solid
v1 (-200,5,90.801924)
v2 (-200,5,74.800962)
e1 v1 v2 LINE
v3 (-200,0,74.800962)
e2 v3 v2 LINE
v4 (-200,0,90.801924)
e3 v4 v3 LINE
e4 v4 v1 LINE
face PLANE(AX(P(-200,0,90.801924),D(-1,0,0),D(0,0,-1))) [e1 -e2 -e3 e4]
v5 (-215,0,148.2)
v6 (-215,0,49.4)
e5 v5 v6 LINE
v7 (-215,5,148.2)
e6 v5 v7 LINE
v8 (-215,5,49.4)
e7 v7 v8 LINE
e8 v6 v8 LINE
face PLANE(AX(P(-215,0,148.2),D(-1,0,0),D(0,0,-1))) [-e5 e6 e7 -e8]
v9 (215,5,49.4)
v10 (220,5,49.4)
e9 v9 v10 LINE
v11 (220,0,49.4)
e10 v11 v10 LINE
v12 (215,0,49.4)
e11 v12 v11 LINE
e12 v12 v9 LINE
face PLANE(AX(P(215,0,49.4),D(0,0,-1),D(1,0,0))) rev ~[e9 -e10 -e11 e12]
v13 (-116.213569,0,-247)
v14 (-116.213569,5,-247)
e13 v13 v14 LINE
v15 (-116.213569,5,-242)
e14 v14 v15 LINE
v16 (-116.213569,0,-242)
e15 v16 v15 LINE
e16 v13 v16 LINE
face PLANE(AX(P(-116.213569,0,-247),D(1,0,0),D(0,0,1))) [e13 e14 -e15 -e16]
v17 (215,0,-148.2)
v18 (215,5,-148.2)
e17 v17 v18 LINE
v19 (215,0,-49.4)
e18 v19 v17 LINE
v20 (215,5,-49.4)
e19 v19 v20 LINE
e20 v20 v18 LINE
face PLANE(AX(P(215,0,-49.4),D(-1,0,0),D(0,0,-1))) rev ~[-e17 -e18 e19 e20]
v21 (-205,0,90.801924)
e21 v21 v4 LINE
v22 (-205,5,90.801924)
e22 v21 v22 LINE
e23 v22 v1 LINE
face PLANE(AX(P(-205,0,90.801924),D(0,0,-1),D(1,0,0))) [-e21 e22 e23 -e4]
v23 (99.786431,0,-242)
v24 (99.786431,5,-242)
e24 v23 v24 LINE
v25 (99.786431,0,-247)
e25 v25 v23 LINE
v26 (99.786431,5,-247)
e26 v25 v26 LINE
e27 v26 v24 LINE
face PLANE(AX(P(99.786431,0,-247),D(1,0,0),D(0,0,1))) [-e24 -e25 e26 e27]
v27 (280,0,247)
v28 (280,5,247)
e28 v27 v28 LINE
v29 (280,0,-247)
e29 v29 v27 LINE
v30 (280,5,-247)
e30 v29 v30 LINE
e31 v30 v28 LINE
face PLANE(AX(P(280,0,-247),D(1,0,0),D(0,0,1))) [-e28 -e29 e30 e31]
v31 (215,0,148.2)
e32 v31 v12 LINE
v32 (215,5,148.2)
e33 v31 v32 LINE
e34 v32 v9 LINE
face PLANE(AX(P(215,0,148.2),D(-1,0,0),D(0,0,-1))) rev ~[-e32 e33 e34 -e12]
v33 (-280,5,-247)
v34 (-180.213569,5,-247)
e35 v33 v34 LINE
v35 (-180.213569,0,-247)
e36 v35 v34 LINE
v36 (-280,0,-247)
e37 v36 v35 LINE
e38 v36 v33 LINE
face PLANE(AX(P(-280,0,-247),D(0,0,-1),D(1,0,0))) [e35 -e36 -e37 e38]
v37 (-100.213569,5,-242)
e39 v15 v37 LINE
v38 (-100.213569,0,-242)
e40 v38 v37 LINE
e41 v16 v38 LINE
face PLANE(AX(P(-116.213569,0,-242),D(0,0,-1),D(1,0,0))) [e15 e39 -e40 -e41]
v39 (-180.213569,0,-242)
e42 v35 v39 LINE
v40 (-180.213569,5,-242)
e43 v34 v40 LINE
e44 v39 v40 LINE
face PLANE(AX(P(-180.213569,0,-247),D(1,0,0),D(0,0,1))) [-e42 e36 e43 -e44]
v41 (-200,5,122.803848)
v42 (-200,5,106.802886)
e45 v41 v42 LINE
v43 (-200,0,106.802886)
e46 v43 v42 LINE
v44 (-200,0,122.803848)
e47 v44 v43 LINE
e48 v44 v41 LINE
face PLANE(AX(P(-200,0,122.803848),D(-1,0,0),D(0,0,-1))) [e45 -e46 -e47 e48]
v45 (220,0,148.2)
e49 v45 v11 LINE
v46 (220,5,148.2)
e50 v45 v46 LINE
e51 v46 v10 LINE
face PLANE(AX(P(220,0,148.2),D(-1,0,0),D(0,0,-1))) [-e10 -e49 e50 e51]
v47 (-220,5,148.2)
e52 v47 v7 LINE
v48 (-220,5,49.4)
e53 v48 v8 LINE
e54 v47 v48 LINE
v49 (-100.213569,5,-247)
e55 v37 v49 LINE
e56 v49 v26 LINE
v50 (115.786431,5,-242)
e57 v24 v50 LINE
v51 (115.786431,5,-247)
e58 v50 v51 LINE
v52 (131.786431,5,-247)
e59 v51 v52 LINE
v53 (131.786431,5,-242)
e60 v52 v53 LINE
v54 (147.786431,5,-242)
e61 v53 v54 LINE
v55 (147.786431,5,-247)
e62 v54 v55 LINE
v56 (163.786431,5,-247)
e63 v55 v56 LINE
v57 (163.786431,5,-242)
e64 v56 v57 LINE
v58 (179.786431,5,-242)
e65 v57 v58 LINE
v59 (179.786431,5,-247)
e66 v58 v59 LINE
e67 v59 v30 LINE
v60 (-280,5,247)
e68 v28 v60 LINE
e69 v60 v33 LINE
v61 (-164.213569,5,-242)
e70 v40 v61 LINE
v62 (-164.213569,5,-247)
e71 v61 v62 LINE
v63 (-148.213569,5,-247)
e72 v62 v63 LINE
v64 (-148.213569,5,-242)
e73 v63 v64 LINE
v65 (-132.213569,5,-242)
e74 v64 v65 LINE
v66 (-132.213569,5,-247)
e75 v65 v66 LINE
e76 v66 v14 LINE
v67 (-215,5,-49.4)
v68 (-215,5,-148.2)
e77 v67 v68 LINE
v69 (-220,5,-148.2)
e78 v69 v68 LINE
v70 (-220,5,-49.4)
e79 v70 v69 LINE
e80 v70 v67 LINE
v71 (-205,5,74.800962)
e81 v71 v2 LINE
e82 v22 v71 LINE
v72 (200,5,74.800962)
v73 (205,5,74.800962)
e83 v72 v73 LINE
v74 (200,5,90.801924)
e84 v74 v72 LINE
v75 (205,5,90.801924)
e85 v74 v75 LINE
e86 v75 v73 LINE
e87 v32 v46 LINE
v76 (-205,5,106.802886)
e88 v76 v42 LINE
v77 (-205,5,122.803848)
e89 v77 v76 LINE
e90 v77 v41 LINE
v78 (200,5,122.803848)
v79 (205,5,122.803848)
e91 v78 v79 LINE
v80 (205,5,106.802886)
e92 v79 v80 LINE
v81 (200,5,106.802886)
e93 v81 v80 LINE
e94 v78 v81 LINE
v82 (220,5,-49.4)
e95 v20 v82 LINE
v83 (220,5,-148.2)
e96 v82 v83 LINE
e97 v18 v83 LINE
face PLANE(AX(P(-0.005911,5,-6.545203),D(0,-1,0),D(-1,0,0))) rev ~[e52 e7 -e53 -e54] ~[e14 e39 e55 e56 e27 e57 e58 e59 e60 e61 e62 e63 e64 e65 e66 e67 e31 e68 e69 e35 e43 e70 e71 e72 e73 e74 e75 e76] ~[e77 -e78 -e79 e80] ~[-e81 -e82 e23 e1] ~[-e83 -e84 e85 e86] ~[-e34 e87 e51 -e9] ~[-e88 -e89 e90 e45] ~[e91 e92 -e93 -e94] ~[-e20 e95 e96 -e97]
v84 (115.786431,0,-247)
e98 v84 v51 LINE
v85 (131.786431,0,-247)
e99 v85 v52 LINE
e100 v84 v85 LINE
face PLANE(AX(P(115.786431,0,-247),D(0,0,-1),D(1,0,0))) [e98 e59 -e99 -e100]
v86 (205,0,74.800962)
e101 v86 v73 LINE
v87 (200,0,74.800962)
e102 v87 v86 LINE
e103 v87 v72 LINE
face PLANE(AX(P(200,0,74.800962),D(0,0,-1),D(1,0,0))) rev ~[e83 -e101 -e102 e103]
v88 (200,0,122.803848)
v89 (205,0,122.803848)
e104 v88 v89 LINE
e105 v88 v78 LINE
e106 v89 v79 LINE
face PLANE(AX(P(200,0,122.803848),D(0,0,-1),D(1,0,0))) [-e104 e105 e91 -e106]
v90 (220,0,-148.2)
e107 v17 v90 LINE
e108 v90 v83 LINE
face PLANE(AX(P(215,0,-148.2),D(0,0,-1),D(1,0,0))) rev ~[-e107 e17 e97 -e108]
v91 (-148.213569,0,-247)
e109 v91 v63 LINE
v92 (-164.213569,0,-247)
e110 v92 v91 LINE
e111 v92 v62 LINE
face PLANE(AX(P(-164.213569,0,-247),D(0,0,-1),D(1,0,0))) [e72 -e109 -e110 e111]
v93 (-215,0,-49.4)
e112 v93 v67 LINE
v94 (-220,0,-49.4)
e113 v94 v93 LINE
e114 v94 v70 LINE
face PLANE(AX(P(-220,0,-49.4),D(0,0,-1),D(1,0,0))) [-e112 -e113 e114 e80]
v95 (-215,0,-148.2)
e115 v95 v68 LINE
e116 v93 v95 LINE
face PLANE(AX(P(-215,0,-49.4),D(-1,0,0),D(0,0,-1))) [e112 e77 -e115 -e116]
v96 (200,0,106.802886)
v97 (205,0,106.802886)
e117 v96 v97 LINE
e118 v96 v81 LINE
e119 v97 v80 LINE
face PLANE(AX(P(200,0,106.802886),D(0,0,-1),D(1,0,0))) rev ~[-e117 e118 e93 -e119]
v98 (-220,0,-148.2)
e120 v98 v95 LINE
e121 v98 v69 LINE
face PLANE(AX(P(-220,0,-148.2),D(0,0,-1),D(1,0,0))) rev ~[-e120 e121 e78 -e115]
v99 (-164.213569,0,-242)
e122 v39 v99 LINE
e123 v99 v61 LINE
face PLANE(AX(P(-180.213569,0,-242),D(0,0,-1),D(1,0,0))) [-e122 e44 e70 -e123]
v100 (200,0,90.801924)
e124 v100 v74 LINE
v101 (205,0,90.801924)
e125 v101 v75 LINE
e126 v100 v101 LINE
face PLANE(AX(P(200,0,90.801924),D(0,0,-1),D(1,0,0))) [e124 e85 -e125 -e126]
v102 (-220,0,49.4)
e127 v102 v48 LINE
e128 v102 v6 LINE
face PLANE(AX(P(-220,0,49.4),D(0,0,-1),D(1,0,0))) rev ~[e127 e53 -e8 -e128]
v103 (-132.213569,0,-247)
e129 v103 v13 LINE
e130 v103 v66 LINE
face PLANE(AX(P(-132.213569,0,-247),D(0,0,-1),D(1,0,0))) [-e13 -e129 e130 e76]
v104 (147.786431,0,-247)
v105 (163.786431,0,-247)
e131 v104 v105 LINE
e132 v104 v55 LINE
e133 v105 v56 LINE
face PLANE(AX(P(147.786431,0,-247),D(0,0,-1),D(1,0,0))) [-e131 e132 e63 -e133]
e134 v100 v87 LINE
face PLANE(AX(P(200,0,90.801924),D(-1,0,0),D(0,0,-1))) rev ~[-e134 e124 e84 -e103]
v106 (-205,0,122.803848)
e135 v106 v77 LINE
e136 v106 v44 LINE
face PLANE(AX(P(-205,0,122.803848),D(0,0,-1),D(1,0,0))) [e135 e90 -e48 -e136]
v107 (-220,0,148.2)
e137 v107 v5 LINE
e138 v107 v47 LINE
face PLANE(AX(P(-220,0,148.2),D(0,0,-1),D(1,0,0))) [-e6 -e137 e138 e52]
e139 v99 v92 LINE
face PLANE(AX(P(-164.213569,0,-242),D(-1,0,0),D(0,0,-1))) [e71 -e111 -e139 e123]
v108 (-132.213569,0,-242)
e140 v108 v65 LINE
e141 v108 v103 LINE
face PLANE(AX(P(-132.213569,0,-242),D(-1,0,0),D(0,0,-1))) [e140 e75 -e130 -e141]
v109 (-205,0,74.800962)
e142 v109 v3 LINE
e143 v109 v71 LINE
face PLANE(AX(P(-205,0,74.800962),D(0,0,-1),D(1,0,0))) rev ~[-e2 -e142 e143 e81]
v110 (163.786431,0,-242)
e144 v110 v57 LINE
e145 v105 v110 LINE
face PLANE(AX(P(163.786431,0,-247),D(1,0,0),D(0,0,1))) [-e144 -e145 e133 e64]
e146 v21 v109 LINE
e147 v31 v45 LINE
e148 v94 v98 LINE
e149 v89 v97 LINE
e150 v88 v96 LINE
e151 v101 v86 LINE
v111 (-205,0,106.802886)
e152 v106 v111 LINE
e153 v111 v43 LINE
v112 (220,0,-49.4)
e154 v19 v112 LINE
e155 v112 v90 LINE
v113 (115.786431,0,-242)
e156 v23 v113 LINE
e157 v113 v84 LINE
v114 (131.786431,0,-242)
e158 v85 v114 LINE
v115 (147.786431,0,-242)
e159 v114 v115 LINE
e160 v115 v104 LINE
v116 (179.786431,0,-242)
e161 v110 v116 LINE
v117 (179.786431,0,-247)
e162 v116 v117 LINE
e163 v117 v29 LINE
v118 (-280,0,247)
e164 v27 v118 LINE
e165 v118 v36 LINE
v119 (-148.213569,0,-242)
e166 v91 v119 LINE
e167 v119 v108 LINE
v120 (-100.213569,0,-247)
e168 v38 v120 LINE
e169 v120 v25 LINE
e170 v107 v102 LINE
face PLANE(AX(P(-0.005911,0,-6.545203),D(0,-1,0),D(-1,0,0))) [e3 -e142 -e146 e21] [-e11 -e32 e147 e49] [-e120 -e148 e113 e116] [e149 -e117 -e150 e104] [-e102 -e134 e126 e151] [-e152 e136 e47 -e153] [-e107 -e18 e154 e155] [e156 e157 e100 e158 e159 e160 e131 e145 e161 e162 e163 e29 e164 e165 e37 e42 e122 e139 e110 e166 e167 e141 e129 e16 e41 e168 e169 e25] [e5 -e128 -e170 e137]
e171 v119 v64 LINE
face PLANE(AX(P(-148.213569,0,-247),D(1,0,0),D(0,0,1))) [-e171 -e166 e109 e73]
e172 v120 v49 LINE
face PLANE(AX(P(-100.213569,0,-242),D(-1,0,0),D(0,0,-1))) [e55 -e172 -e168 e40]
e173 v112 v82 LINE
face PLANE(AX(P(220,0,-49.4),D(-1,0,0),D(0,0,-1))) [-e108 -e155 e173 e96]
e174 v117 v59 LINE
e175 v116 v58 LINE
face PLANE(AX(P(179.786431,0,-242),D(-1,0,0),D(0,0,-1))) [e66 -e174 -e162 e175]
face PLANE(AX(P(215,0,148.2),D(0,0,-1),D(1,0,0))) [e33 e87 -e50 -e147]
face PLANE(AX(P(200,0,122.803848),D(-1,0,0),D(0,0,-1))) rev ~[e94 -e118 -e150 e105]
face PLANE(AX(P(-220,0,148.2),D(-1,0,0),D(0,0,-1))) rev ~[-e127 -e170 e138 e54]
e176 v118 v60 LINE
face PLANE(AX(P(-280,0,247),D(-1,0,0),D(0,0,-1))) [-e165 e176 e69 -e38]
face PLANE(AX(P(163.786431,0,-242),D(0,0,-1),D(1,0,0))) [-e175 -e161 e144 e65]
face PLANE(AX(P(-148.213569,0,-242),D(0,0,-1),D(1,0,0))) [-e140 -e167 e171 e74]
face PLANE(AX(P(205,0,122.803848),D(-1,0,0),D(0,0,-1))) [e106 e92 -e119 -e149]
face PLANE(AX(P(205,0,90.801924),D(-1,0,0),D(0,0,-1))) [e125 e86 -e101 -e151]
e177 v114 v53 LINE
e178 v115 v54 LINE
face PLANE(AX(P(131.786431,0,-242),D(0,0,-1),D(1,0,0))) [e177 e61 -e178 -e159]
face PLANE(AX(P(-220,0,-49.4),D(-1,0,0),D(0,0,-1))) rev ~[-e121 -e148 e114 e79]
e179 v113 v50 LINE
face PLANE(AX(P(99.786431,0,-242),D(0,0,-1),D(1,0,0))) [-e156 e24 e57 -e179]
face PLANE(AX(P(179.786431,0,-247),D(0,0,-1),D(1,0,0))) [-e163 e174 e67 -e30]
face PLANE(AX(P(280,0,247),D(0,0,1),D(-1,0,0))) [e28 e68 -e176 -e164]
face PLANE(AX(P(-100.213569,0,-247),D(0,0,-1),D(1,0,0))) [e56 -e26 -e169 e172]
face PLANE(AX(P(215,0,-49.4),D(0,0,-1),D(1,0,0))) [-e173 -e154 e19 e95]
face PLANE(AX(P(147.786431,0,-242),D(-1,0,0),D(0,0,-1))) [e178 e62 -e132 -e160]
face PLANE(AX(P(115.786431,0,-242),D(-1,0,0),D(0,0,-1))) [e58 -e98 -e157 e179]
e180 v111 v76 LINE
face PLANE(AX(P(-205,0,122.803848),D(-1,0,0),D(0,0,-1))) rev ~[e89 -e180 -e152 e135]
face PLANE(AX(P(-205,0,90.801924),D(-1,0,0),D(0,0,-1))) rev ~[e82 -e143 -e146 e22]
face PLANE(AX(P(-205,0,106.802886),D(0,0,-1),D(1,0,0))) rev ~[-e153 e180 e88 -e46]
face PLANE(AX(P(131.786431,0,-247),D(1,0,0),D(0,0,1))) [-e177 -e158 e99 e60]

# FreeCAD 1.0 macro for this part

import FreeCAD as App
import Part
import Sketcher

V = App.Vector


def add_polygon(sketch, points):
    """Adds a closed chain of lines whose ends are joined by coincident constraints."""
    first, n = sketch.GeometryCount, len(points)
    for a, b in zip(points, points[1:] + points[:1]):
        sketch.addGeometry(Part.LineSegment(App.Vector(*a, 0), App.Vector(*b, 0)), False)
    for i in range(n):
        sketch.addConstraint(Sketcher.Constraint("Coincident", first + i, 2, first + (i + 1) % n, 1))

doc = App.newDocument("Part")
body = doc.addObject("PartDesign::Body", "Body")

# Sketch on XZ plane
sketch1 = body.newObject("Sketcher::SketchObject", "Sketch")
sketch1.AttachmentSupport = (doc.getObject("XZ_Plane"), [""])
sketch1.MapMode = "FlatFace"
add_polygon(sketch1, [(-180, -247), (-280, -247), (-280, 247), (280, 247), (280, -247), (180, -247), (180, -242), (164, -242), (164, -247), (148, -247), (148, -242), (132, -242), (132, -247), (116, -247), (116, -242), (100, -242), (100, -247), (-100, -247), (-100, -242), (-116, -242), (-116, -247), (-132, -247), (-132, -242), (-148, -242), (-148, -247), (-164, -247), (-164, -242), (-180, -242)])  # lines 0-27
add_polygon(sketch1, [(200, 123), (200, 107), (205, 107), (205, 123)])  # lines 28-31
add_polygon(sketch1, [(215, 148), (215, 49), (220, 49), (220, 148)])  # lines 32-35
add_polygon(sketch1, [(200, 91), (200, 75), (205, 75), (205, 91)])  # lines 36-39
add_polygon(sketch1, [(-205, 123), (-205, 107), (-200, 107), (-200, 123)])  # lines 40-43
add_polygon(sketch1, [(-220, 148), (-220, 49), (-215, 49), (-215, 148)])  # lines 44-47
add_polygon(sketch1, [(-205, 91), (-205, 75), (-200, 75), (-200, 91)])  # lines 48-51
add_polygon(sketch1, [(215, -49), (215, -148), (220, -148), (220, -49)])  # lines 52-55
add_polygon(sketch1, [(-220, -49), (-220, -148), (-215, -148), (-215, -49)])  # lines 56-59
sketch1.addConstraint(Sketcher.Constraint("Horizontal", 0))
sketch1.addConstraint(Sketcher.Constraint("Vertical", 1))
sketch1.addConstraint(Sketcher.Constraint("Horizontal", 2))
sketch1.addConstraint(Sketcher.Constraint("Vertical", 3))
sketch1.addConstraint(Sketcher.Constraint("Horizontal", 4))
sketch1.addConstraint(Sketcher.Constraint("Vertical", 5))
sketch1.addConstraint(Sketcher.Constraint("Horizontal", 6))
sketch1.addConstraint(Sketcher.Constraint("Vertical", 7))
sketch1.addConstraint(Sketcher.Constraint("Horizontal", 8))
sketch1.addConstraint(Sketcher.Constraint("Vertical", 9))
sketch1.addConstraint(Sketcher.Constraint("Horizontal", 10))
sketch1.addConstraint(Sketcher.Constraint("Vertical", 11))
sketch1.addConstraint(Sketcher.Constraint("Horizontal", 12))
sketch1.addConstraint(Sketcher.Constraint("Vertical", 13))
sketch1.addConstraint(Sketcher.Constraint("Horizontal", 14))
sketch1.addConstraint(Sketcher.Constraint("Vertical", 15))
sketch1.addConstraint(Sketcher.Constraint("Horizontal", 16))
sketch1.addConstraint(Sketcher.Constraint("Vertical", 17))
sketch1.addConstraint(Sketcher.Constraint("Horizontal", 18))
sketch1.addConstraint(Sketcher.Constraint("Vertical", 19))
sketch1.addConstraint(Sketcher.Constraint("Horizontal", 20))
sketch1.addConstraint(Sketcher.Constraint("Vertical", 21))
sketch1.addConstraint(Sketcher.Constraint("Horizontal", 22))
sketch1.addConstraint(Sketcher.Constraint("Vertical", 23))
sketch1.addConstraint(Sketcher.Constraint("Horizontal", 24))
sketch1.addConstraint(Sketcher.Constraint("Vertical", 25))
sketch1.addConstraint(Sketcher.Constraint("Horizontal", 26))
sketch1.addConstraint(Sketcher.Constraint("Vertical", 27))
sketch1.addConstraint(Sketcher.Constraint("Vertical", 28))
sketch1.addConstraint(Sketcher.Constraint("Horizontal", 29))
sketch1.addConstraint(Sketcher.Constraint("Vertical", 30))
sketch1.addConstraint(Sketcher.Constraint("Horizontal", 31))
sketch1.addConstraint(Sketcher.Constraint("Vertical", 32))
sketch1.addConstraint(Sketcher.Constraint("Horizontal", 33))
sketch1.addConstraint(Sketcher.Constraint("Vertical", 34))
sketch1.addConstraint(Sketcher.Constraint("Horizontal", 35))
sketch1.addConstraint(Sketcher.Constraint("Vertical", 36))
sketch1.addConstraint(Sketcher.Constraint("Horizontal", 37))
sketch1.addConstraint(Sketcher.Constraint("Vertical", 38))
sketch1.addConstraint(Sketcher.Constraint("Horizontal", 39))
sketch1.addConstraint(Sketcher.Constraint("Vertical", 40))
sketch1.addConstraint(Sketcher.Constraint("Horizontal", 41))
sketch1.addConstraint(Sketcher.Constraint("Vertical", 42))
sketch1.addConstraint(Sketcher.Constraint("Horizontal", 43))
sketch1.addConstraint(Sketcher.Constraint("Vertical", 44))
sketch1.addConstraint(Sketcher.Constraint("Horizontal", 45))
sketch1.addConstraint(Sketcher.Constraint("Vertical", 46))
sketch1.addConstraint(Sketcher.Constraint("Horizontal", 47))
sketch1.addConstraint(Sketcher.Constraint("Vertical", 48))
sketch1.addConstraint(Sketcher.Constraint("Horizontal", 49))
sketch1.addConstraint(Sketcher.Constraint("Vertical", 50))
sketch1.addConstraint(Sketcher.Constraint("Horizontal", 51))
sketch1.addConstraint(Sketcher.Constraint("Vertical", 52))
sketch1.addConstraint(Sketcher.Constraint("Horizontal", 53))
sketch1.addConstraint(Sketcher.Constraint("Vertical", 54))
sketch1.addConstraint(Sketcher.Constraint("Horizontal", 55))
sketch1.addConstraint(Sketcher.Constraint("Vertical", 56))
sketch1.addConstraint(Sketcher.Constraint("Horizontal", 57))
sketch1.addConstraint(Sketcher.Constraint("Vertical", 58))
sketch1.addConstraint(Sketcher.Constraint("Horizontal", 59))
sketch1.addConstraint(Sketcher.Constraint("Symmetric", 0, 2, 2, 2, -1, 1))
sketch1.addConstraint(Sketcher.Constraint("Symmetric", 46, 2, 52, 2, -1, 1))
sketch1.addConstraint(Sketcher.Constraint("Symmetric", 44, 2, 54, 2, -1, 1))
sketch1.addConstraint(Sketcher.Constraint("Symmetric", 34, 2, 56, 2, -1, 1))
sketch1.addConstraint(Sketcher.Constraint("Symmetric", 32, 2, 58, 2, -1, 1))
sketch1.addConstraint(Sketcher.Constraint("Symmetric", 29, 2, 40, 2, -2))
sketch1.addConstraint(Sketcher.Constraint("Symmetric", 31, 2, 42, 2, -2))
sketch1.addConstraint(Sketcher.Constraint("Symmetric", 33, 2, 44, 2, -2))
sketch1.addConstraint(Sketcher.Constraint("Symmetric", 35, 2, 46, 2, -2))
sketch1.addConstraint(Sketcher.Constraint("Symmetric", 37, 2, 48, 2, -2))
sketch1.addConstraint(Sketcher.Constraint("Symmetric", 39, 2, 50, 2, -2))
sketch1.addConstraint(Sketcher.Constraint("Horizontal", 0, 2, 3, 2))
sketch1.addConstraint(Sketcher.Constraint("Horizontal", 4, 2, 7, 2))
sketch1.addConstraint(Sketcher.Constraint("Horizontal", 6, 2, 9, 2))
sketch1.addConstraint(Sketcher.Constraint("Horizontal", 8, 2, 11, 2))
sketch1.addConstraint(Sketcher.Constraint("Horizontal", 10, 2, 13, 2))
sketch1.addConstraint(Sketcher.Constraint("Horizontal", 12, 2, 15, 2))
sketch1.addConstraint(Sketcher.Constraint("Horizontal", 14, 2, 17, 2))
sketch1.addConstraint(Sketcher.Constraint("Horizontal", 16, 2, 19, 2))
sketch1.addConstraint(Sketcher.Constraint("Horizontal", 18, 2, 21, 2))
sketch1.addConstraint(Sketcher.Constraint("Horizontal", 20, 2, 23, 2))
sketch1.addConstraint(Sketcher.Constraint("Horizontal", 22, 2, 25, 2))
sketch1.addConstraint(Sketcher.Constraint("Vertical", 31, 2, 36, 2))
sketch1.addConstraint(Sketcher.Constraint("Vertical", 30, 2, 37, 2))
sketch1.addConstraint(Sketcher.Constraint("Equal", 6, 8))
sketch1.addConstraint(Sketcher.Constraint("Equal", 8, 10))
sketch1.addConstraint(Sketcher.Constraint("Equal", 10, 12))
sketch1.addConstraint(Sketcher.Constraint("Equal", 12, 14))
sketch1.addConstraint(Sketcher.Constraint("Equal", 14, 18))
sketch1.addConstraint(Sketcher.Constraint("Equal", 18, 20))
sketch1.addConstraint(Sketcher.Constraint("Equal", 20, 22))
sketch1.addConstraint(Sketcher.Constraint("Equal", 22, 24))
sketch1.addConstraint(Sketcher.Constraint("Equal", 24, 26))
sketch1.addConstraint(Sketcher.Constraint("Equal", 31, 33))
sketch1.addConstraint(Sketcher.Constraint("Equal", 59, 5))
sketch1.addConstraint(Sketcher.Constraint("Equal", 30, 36))
sketch1.addConstraint(Sketcher.Constraint("DistanceX", 2, 1, 2, 2, 560.0))
sketch1.addConstraint(Sketcher.Constraint("DistanceX", 6, 2, 6, 1, 16.0))
sketch1.addConstraint(Sketcher.Constraint("DistanceX", 16, 2, 16, 1, 200.0))
sketch1.addConstraint(Sketcher.Constraint("DistanceX", 29, 1, 29, 2, 5.0))
sketch1.addConstraint(Sketcher.Constraint("DistanceY", 1, 1, 1, 2, 494.0))
sketch1.addConstraint(Sketcher.Constraint("DistanceY", 32, 2, 32, 1, 98.8))
sketch1.addConstraint(Sketcher.Constraint("DistanceX", -1, 1, 28, 2, 200.0))
sketch1.addConstraint(Sketcher.Constraint("DistanceX", -1, 1, 32, 2, 215.0))
sketch1.addConstraint(Sketcher.Constraint("DistanceY", -1, 1, 32, 2, 49.4))
sketch1.addConstraint(Sketcher.Constraint("DistanceX", 0, 2, 0, 1, 99.786431))
sketch1.addConstraint(Sketcher.Constraint("DistanceY", 28, 2, 28, 1, 16.000962))
sketch1.addConstraint(Sketcher.Constraint("DistanceY", -1, 1, 30, 2, 122.803848))
sketch1.addConstraint(Sketcher.Constraint("DistanceY", -1, 1, 36, 2, 74.800962))
pad1 = body.newObject("PartDesign::Pad", "Pad")
pad1.Profile = sketch1
pad1.Length = 5
pad1.Reversed = True

doc.recompute()
